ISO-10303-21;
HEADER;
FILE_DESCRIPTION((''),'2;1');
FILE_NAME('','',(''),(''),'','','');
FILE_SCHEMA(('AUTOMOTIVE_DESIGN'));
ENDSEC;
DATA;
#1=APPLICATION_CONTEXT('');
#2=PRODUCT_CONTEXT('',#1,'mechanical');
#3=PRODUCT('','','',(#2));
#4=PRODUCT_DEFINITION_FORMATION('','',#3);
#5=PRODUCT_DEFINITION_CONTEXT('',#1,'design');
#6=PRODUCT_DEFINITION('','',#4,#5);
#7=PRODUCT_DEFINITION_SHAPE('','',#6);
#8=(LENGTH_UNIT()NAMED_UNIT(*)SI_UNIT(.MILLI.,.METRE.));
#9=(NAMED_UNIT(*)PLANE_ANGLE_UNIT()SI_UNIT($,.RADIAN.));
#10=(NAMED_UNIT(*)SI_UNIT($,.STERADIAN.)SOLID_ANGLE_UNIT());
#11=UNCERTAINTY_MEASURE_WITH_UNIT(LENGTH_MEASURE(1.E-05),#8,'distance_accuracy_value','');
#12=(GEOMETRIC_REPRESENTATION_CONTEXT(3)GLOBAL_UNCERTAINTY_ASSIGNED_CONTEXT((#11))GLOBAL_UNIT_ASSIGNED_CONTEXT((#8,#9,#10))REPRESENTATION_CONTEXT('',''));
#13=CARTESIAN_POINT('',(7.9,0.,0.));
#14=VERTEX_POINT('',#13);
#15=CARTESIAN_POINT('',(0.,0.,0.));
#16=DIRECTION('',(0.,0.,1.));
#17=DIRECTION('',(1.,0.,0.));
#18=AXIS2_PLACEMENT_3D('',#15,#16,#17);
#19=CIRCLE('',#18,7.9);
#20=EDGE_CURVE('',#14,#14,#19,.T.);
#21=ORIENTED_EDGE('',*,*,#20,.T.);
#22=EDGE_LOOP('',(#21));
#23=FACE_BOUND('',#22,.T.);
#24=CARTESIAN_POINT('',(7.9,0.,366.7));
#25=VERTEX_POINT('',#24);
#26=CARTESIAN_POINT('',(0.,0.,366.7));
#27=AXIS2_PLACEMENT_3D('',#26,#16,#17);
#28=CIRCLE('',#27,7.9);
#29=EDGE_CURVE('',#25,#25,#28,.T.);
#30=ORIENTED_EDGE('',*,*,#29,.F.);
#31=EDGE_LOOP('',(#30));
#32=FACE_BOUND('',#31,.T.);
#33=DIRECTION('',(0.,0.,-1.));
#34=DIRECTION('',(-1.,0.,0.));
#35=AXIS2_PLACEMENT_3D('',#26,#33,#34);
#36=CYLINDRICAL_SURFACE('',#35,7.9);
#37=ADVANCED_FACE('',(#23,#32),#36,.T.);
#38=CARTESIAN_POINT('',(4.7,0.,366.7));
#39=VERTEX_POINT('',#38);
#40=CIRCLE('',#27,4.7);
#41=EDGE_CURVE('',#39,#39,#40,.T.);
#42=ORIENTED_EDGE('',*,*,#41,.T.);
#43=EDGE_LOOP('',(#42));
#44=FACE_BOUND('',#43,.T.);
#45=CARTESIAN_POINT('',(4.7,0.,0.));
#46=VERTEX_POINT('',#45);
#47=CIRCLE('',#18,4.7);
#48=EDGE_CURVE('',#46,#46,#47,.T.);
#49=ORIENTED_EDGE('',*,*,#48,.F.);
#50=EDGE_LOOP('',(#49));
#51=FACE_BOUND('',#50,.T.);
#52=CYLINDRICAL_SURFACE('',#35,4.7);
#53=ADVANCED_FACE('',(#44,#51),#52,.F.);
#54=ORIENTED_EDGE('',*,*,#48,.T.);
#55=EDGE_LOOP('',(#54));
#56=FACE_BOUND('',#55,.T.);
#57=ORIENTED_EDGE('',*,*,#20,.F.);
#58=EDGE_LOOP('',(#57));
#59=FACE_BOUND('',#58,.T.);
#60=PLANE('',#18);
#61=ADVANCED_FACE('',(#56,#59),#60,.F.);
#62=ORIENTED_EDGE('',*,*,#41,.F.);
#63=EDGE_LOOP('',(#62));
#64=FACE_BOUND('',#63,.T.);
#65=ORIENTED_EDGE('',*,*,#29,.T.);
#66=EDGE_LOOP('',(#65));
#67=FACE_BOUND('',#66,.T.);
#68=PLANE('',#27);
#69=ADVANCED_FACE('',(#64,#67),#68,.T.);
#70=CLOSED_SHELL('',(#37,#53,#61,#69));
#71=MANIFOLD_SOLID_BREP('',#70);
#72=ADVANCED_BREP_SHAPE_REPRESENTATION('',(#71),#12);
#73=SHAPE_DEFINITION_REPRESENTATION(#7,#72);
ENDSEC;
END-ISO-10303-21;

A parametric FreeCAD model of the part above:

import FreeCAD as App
import Part
import Sketcher

V = App.Vector
Q = App.Units.Quantity

doc = App.newDocument("Part")
body = doc.addObject("PartDesign::Body", "Body")

# Sketch on XY plane
sketch1 = body.newObject("Sketcher::SketchObject", "Sketch")
sketch1.AttachmentSupport = (doc.getObject("XY_Plane"), [""])
sketch1.MapMode = "FlatFace"
sketch1.addGeometry([
    Part.Circle(V(0, 0, 0), V(0, 0, 1), 7.9),
    Part.Circle(V(0, 0, 0), V(0, 0, 1), 4.7),
], False)
sketch1.addConstraint([
    Sketcher.Constraint("Coincident", 0, 3, -1, 1),
    Sketcher.Constraint("Coincident", 1, 3, -1, 1),
    Sketcher.Constraint("Diameter", 0, Q("15.8 mm")),
    Sketcher.Constraint("Diameter", 1, Q("9.4 mm")),
])
pad1 = body.newObject("PartDesign::Pad", "Pad")
pad1.Profile = sketch1
pad1.Length = 366.7

doc.recompute()
